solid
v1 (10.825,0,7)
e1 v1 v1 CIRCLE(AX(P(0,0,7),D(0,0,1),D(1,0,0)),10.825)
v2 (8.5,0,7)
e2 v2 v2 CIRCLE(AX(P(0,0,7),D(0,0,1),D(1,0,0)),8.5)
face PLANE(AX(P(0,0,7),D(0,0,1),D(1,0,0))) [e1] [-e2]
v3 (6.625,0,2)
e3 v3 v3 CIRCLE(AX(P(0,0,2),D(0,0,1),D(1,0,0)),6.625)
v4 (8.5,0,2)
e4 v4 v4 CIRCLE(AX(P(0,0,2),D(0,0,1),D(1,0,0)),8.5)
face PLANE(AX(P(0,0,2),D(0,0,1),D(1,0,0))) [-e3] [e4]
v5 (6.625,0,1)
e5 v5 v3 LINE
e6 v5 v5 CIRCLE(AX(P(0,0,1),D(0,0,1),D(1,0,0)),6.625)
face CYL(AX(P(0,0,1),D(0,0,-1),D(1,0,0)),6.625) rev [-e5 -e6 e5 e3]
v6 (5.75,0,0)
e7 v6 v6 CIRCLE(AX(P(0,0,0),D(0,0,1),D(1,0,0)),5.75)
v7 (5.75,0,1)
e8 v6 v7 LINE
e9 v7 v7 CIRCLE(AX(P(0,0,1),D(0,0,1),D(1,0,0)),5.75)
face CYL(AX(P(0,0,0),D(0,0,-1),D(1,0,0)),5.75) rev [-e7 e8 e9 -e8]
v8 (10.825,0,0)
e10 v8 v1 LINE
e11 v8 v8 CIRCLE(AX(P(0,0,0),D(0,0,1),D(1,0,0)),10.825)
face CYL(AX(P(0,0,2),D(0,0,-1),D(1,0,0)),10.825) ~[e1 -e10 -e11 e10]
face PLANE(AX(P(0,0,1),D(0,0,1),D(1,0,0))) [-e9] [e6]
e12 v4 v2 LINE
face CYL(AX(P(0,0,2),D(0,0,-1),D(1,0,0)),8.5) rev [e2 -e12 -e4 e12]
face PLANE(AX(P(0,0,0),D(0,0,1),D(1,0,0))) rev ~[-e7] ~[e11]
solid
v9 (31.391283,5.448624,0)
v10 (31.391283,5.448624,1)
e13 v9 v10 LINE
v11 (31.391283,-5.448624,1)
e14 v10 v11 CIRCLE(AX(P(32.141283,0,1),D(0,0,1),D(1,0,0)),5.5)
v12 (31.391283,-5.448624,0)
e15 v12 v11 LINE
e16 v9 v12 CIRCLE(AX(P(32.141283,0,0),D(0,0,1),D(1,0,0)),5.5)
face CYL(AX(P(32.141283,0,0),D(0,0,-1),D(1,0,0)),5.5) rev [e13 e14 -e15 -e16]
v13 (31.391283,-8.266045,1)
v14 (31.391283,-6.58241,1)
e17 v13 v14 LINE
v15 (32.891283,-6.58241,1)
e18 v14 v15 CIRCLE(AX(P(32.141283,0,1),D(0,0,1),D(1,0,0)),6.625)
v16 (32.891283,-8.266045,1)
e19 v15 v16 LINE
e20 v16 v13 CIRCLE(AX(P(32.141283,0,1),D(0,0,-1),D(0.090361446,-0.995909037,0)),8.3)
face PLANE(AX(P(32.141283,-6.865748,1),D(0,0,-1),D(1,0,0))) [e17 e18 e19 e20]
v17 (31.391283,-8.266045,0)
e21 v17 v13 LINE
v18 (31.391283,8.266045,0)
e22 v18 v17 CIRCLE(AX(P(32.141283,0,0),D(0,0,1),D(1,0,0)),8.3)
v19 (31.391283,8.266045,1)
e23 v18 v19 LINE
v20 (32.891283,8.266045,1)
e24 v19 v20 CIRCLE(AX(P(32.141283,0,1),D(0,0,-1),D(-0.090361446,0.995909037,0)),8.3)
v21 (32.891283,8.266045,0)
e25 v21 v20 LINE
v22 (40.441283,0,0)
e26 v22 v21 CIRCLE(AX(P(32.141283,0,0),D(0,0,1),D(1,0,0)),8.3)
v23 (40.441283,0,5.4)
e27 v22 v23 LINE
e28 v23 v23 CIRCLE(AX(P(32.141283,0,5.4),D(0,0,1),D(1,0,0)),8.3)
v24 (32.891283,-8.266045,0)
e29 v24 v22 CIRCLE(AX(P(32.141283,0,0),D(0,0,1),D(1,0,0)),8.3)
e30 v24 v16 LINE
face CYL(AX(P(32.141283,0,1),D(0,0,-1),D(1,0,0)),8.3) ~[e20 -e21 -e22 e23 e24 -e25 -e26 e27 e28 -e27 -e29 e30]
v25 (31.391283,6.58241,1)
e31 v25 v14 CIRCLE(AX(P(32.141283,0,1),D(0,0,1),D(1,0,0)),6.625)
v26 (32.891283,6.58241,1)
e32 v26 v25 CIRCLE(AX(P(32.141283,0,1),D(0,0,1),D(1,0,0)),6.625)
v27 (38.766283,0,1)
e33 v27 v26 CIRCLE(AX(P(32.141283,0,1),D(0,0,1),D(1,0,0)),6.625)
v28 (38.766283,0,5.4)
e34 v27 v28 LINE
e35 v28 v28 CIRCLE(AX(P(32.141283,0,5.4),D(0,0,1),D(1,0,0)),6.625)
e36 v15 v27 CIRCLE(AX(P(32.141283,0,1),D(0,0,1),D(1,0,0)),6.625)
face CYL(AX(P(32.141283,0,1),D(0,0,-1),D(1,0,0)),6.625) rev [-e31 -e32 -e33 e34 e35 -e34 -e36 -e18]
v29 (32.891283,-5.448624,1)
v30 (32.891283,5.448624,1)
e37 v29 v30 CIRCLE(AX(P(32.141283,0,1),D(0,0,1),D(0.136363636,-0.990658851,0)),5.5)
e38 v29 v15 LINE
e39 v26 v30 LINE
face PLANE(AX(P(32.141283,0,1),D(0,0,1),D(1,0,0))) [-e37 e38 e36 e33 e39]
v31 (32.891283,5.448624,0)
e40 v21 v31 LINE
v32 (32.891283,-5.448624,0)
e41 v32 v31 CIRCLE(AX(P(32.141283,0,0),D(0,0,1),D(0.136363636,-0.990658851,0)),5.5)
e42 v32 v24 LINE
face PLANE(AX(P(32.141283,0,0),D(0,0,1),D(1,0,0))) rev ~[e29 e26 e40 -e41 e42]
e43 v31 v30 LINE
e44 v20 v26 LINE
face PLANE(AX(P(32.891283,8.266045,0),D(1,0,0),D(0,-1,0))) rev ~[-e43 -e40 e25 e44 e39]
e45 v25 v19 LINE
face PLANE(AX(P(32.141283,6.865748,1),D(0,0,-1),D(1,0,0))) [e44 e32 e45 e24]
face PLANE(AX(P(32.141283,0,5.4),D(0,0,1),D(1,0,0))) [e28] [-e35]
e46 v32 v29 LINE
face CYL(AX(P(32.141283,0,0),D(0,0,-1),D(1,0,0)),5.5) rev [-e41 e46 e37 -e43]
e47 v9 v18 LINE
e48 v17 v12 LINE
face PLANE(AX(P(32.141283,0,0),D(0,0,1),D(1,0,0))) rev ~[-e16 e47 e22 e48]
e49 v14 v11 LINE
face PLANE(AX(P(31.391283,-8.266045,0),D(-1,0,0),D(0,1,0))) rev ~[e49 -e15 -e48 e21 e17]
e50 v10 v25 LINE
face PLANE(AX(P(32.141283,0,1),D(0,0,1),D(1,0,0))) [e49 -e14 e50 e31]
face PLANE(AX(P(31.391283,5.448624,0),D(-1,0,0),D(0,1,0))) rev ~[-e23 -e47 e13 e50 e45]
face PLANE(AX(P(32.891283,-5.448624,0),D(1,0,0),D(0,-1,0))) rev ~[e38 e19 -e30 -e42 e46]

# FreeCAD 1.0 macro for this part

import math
import FreeCAD as App
import Part
import Sketcher

V = App.Vector
Q = App.Units.Quantity

doc = App.newDocument("Part")
params = doc.addObject("Spreadsheet::Sheet", "Params")
for row, (alias, value) in enumerate([
    ("sketch1_diameter", "11.5 mm"),
    ("sketch1_diameter2", "21.65 mm"),
    ("pad1_length", "1 mm"),
    ("sketch2_diameter", "21.65 mm"),
    ("sketch2_diameter2", "13.25 mm"),
    ("pad2_length", "1 mm"),
    ("sketch3_diameter", "17 mm"),
    ("sketch3_diameter2", "21.65 mm"),
    ("pad3_length", "5 mm"),
    ("sketch4_diameter", "11 mm"),
    ("sketch4_diameter2", "16.6 mm"),
    ("pad4_length", "1 mm"),
    ("sketch5_diameter", "16.6 mm"),
    ("sketch5_diameter2", "13.25 mm"),
    ("pad5_length", "4.4 mm"),
    ("sketch6_radius", "5.5 mm"),
    ("sketch6_radius2", "8.3 mm"),
    ("pocket1_length", "1 mm"),
], start=1):
    params.set(f"A{row}", alias)
    params.set(f"B{row}", "=" + value)
    params.setAlias(f"B{row}", alias)

body = doc.addObject("PartDesign::Body", "Body")

sketch1 = body.newObject("Sketcher::SketchObject", "Sketch")
sketch1.AttachmentSupport = (doc.getObject("XY_Plane"), [""])
sketch1.MapMode = "FlatFace"
sketch1.addGeometry(Part.Circle(V(0, 0, 0), V(0, 0, 1), 11), False)
sketch1.addGeometry(Part.Circle(V(0, 0, 0), V(0, 0, 1), 6), False)
sketch1.addConstraint(Sketcher.Constraint("Coincident", 0, 3, -1, 1))
sketch1.addConstraint(Sketcher.Constraint("Coincident", 1, 3, -1, 1))
sketch1.addConstraint(Sketcher.Constraint("Diameter", 1, Q("11.5 mm")))
sketch1.addConstraint(Sketcher.Constraint("Diameter", 0, Q("21.65 mm")))
sketch1.setExpression("Constraints[2]", "Params.sketch1_diameter")
sketch1.setExpression("Constraints[3]", "Params.sketch1_diameter2")
pad1 = body.newObject("PartDesign::Pad", "Pad")
pad1.Profile = sketch1
pad1.setExpression("Length", "Params.pad1_length")

sketch2 = body.newObject("Sketcher::SketchObject", "Sketch001")
sketch2.AttachmentSupport = (doc.getObject("XY_Plane"), [""])
sketch2.MapMode = "FlatFace"
sketch2.AttachmentOffset = App.Placement(V(0, 0, 1), App.Rotation())
sketch2.addGeometry(Part.Circle(V(0, 0, 0), V(0, 0, 1), 11), False)
sketch2.addGeometry(Part.Circle(V(0, 0, 0), V(0, 0, 1), 7), False)
sketch2.addConstraint(Sketcher.Constraint("Coincident", 0, 3, -1, 1))
sketch2.addConstraint(Sketcher.Constraint("Coincident", 1, 3, -1, 1))
sketch2.addConstraint(Sketcher.Constraint("Diameter", 0, Q("21.65 mm")))
sketch2.addConstraint(Sketcher.Constraint("Diameter", 1, Q("13.25 mm")))
sketch2.setExpression("Constraints[2]", "Params.sketch2_diameter")
sketch2.setExpression("Constraints[3]", "Params.sketch2_diameter2")
pad2 = body.newObject("PartDesign::Pad", "Pad001")
pad2.Profile = sketch2
pad2.setExpression("Length", "Params.pad2_length")

sketch3 = body.newObject("Sketcher::SketchObject", "Sketch002")
sketch3.AttachmentSupport = (doc.getObject("XY_Plane"), [""])
sketch3.MapMode = "FlatFace"
sketch3.AttachmentOffset = App.Placement(V(0, 0, 2), App.Rotation())
sketch3.addGeometry(Part.Circle(V(0, 0, 0), V(0, 0, 1), 11), False)
sketch3.addGeometry(Part.Circle(V(0, 0, 0), V(0, 0, 1), 8), False)
sketch3.addConstraint(Sketcher.Constraint("Coincident", 0, 3, -1, 1))
sketch3.addConstraint(Sketcher.Constraint("Coincident", 1, 3, -1, 1))
sketch3.addConstraint(Sketcher.Constraint("Diameter", 1, Q("17 mm")))
sketch3.addConstraint(Sketcher.Constraint("Diameter", 0, Q("21.65 mm")))
sketch3.setExpression("Constraints[2]", "Params.sketch3_diameter")
sketch3.setExpression("Constraints[3]", "Params.sketch3_diameter2")
pad3 = body.newObject("PartDesign::Pad", "Pad002")
pad3.Profile = sketch3
pad3.setExpression("Length", "Params.pad3_length")
body2 = doc.addObject("PartDesign::Body", "Body001")

sketch4 = body2.newObject("Sketcher::SketchObject", "Sketch003")
sketch4.AttachmentSupport = (doc.getObject("XY_Plane001"), [""])
sketch4.MapMode = "FlatFace"
sketch4.addGeometry(Part.Circle(V(32, 0, 0), V(0, 0, 1), 8), False)
sketch4.addGeometry(Part.Circle(V(32, 0, 0), V(0, 0, 1), 6), False)
sketch4.addConstraint(Sketcher.Constraint("Coincident", 1, 3, 0, 3))
sketch4.addConstraint(Sketcher.Constraint("PointOnObject", 0, 3, -1))
sketch4.addConstraint(Sketcher.Constraint("Diameter", 1, Q("11 mm")))
sketch4.addConstraint(Sketcher.Constraint("Diameter", 0, Q("16.6 mm")))
sketch4.addConstraint(Sketcher.Constraint("DistanceX", -1, 1, 0, 3, Q("32.141283 mm")))
sketch4.setExpression("Constraints[2]", "Params.sketch4_diameter")
sketch4.setExpression("Constraints[3]", "Params.sketch4_diameter2")
pad4 = body2.newObject("PartDesign::Pad", "Pad003")
pad4.Profile = sketch4
pad4.setExpression("Length", "Params.pad4_length")

sketch5 = body2.newObject("Sketcher::SketchObject", "Sketch004")
sketch5.AttachmentSupport = (doc.getObject("XY_Plane001"), [""])
sketch5.MapMode = "FlatFace"
sketch5.AttachmentOffset = App.Placement(V(0, 0, 1), App.Rotation())
sketch5.addGeometry(Part.Circle(V(32, 0, 0), V(0, 0, 1), 8), False)
sketch5.addGeometry(Part.Circle(V(32, 0, 0), V(0, 0, 1), 7), False)
sketch5.addConstraint(Sketcher.Constraint("Coincident", 1, 3, 0, 3))
sketch5.addConstraint(Sketcher.Constraint("PointOnObject", 0, 3, -1))
sketch5.addConstraint(Sketcher.Constraint("Diameter", 0, Q("16.6 mm")))
sketch5.addConstraint(Sketcher.Constraint("Diameter", 1, Q("13.25 mm")))
sketch5.addConstraint(Sketcher.Constraint("DistanceX", -1, 1, 0, 3, Q("32.141283 mm")))
sketch5.setExpression("Constraints[2]", "Params.sketch5_diameter")
sketch5.setExpression("Constraints[3]", "Params.sketch5_diameter2")
pad5 = body2.newObject("PartDesign::Pad", "Pad004")
pad5.Profile = sketch5
pad5.setExpression("Length", "Params.pad5_length")

sketch6 = body2.newObject("Sketcher::SketchObject", "Sketch005")
sketch6.AttachmentSupport = (doc.getObject("XY_Plane001"), [""])
sketch6.MapMode = "FlatFace"
sketch6.addGeometry(Part.ArcOfCircle(Part.Circle(V(32.1, 0, 0), V(0, 0, 1), 5.5), math.radians(-97.84), math.radians(-82.16)), False)
sketch6.addGeometry(Part.LineSegment(V(32.9, -5.4, 0), V(32.9, -8.3, 0)), False)
sketch6.addGeometry(Part.ArcOfCircle(Part.Circle(V(32.1, 0, 0), V(0, 0, 1), 8.3), math.radians(-95.18), math.radians(-84.82)), False)
sketch6.addGeometry(Part.LineSegment(V(31.4, -8.3, 0), V(31.4, -5.4, 0)), False)
sketch6.addGeometry(Part.LineSegment(V(32.9, 8.3, 0), V(32.9, 5.4, 0)), False)
sketch6.addGeometry(Part.ArcOfCircle(Part.Circle(V(32.1, 0, 0), V(0, 0, 1), 5.5), math.radians(82.16), math.radians(97.84)), False)
sketch6.addGeometry(Part.LineSegment(V(31.4, 5.4, 0), V(31.4, 8.3, 0)), False)
sketch6.addGeometry(Part.ArcOfCircle(Part.Circle(V(32.1, 0, 0), V(0, 0, 1), 8.3), math.radians(84.82), math.radians(95.18)), False)
sketch6.addConstraint(Sketcher.Constraint("Coincident", 0, 2, 1, 1))
sketch6.addConstraint(Sketcher.Constraint("Coincident", 1, 2, 2, 2))
sketch6.addConstraint(Sketcher.Constraint("Coincident", 2, 1, 3, 1))
sketch6.addConstraint(Sketcher.Constraint("Coincident", 3, 2, 0, 1))
sketch6.addConstraint(Sketcher.Constraint("Coincident", 4, 2, 5, 1))
sketch6.addConstraint(Sketcher.Constraint("Coincident", 5, 2, 6, 1))
sketch6.addConstraint(Sketcher.Constraint("Coincident", 6, 2, 7, 2))
sketch6.addConstraint(Sketcher.Constraint("Coincident", 7, 1, 4, 1))
sketch6.addConstraint(Sketcher.Constraint("Vertical", 1))
sketch6.addConstraint(Sketcher.Constraint("Vertical", 3))
sketch6.addConstraint(Sketcher.Constraint("Vertical", 4))
sketch6.addConstraint(Sketcher.Constraint("Vertical", 6))
sketch6.addConstraint(Sketcher.Constraint("Coincident", 2, 3, 0, 3))
sketch6.addConstraint(Sketcher.Constraint("Coincident", 5, 3, 0, 3))
sketch6.addConstraint(Sketcher.Constraint("Coincident", 7, 3, 0, 3))
sketch6.addConstraint(Sketcher.Constraint("Equal", 0, 5))
sketch6.addConstraint(Sketcher.Constraint("Equal", 2, 7))
sketch6.addConstraint(Sketcher.Constraint("Symmetric", 0, 2, 4, 2, -1))
sketch6.addConstraint(Sketcher.Constraint("Horizontal", 1, 2, 2, 1))
sketch6.addConstraint(Sketcher.Constraint("Horizontal", 4, 2, 5, 2))
sketch6.addConstraint(Sketcher.Constraint("Radius", 0, Q("5.5 mm")))
sketch6.addConstraint(Sketcher.Constraint("Radius", 2, Q("8.3 mm")))
sketch6.addConstraint(Sketcher.Constraint("DistanceX", 2, 1, 1, 2, Q("1.5 mm")))
sketch6.addConstraint(Sketcher.Constraint("DistanceX", -1, 1, 0, 3, Q("32.141283 mm")))
sketch6.setExpression("Constraints[20]", "Params.sketch6_radius")
sketch6.setExpression("Constraints[21]", "Params.sketch6_radius2")
pocket1 = body2.newObject("PartDesign::Pocket", "Pocket")
pocket1.Profile = sketch6
pocket1.setExpression("Length", "Params.pocket1_length")
pocket1.Reversed = True

doc.recompute()
